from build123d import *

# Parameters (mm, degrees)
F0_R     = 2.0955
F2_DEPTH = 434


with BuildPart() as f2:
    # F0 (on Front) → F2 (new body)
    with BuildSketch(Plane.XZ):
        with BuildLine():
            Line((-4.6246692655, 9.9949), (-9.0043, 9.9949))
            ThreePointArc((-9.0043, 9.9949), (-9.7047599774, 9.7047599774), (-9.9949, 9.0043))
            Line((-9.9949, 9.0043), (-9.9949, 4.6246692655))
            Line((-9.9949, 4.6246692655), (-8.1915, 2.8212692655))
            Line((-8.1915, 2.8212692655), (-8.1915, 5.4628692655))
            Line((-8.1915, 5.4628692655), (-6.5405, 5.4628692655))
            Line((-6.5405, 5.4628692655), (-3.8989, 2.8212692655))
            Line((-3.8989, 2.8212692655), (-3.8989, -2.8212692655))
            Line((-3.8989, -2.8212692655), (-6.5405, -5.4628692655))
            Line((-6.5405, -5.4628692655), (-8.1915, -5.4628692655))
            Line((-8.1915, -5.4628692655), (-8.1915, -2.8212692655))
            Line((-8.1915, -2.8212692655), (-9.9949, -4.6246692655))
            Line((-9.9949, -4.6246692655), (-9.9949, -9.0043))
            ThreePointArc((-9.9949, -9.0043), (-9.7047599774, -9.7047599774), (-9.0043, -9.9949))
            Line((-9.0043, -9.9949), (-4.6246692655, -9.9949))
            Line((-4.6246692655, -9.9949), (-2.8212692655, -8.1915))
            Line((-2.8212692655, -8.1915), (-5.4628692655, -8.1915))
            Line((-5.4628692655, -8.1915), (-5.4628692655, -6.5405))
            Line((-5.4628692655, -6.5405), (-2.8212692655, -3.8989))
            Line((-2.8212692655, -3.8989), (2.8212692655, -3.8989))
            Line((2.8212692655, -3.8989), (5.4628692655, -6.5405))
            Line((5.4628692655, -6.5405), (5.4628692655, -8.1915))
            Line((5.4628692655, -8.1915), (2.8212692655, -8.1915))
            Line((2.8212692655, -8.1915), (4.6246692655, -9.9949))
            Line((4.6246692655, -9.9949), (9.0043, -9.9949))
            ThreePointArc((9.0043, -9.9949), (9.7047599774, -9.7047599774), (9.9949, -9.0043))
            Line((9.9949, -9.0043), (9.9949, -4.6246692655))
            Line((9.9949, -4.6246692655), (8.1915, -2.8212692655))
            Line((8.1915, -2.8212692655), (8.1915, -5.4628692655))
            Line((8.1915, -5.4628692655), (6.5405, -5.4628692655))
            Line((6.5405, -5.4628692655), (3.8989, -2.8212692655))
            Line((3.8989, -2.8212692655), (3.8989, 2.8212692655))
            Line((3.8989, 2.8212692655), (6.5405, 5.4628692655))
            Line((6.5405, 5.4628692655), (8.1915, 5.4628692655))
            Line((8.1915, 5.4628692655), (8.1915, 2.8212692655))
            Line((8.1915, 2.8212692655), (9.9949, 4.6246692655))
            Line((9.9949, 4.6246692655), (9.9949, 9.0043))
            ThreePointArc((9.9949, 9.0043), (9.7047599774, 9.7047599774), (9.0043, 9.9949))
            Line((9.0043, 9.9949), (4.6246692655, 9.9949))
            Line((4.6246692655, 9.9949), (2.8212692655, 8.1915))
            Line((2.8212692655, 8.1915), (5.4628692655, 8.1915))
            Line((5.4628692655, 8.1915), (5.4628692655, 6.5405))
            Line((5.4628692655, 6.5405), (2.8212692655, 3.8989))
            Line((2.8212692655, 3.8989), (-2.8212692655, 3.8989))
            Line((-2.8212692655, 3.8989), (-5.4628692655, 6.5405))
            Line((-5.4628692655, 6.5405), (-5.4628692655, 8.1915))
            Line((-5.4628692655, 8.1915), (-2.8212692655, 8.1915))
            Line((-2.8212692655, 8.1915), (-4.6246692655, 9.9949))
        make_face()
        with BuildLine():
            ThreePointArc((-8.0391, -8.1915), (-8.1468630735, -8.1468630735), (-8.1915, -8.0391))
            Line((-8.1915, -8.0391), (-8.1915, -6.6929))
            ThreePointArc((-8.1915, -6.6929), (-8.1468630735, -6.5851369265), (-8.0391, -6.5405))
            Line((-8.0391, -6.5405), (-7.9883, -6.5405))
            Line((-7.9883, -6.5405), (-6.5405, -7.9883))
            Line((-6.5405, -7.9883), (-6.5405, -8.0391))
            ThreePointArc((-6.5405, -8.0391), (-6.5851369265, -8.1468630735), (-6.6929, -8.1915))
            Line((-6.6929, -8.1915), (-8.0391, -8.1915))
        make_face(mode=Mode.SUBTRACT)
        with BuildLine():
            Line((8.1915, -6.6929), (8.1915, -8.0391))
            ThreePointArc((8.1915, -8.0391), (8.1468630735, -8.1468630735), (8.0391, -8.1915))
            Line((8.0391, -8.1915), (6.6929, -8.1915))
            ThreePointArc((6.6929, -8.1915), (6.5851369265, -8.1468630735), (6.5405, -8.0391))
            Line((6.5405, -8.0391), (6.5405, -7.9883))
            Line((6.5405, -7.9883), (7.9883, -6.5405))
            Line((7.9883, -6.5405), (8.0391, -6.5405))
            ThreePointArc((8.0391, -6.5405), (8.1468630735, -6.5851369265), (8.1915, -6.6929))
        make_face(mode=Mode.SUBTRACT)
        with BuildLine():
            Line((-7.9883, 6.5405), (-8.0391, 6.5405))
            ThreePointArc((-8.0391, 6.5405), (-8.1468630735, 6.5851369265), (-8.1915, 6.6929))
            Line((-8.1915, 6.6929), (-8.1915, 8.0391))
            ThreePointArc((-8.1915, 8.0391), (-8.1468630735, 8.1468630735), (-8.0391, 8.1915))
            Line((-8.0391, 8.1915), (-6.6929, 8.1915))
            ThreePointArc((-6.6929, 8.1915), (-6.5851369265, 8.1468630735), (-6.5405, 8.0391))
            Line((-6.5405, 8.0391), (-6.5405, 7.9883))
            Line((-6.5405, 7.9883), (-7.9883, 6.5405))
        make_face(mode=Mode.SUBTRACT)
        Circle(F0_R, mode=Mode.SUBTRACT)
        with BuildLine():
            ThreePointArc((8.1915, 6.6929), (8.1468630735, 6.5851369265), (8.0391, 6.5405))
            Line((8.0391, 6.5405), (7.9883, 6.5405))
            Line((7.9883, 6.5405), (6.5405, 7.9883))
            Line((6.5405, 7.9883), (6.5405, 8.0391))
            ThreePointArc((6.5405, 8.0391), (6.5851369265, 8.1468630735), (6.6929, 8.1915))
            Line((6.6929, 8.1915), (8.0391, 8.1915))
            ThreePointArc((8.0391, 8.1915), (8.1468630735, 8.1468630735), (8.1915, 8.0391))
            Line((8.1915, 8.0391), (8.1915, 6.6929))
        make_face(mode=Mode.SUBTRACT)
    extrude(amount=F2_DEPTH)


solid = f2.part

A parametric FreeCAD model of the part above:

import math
import FreeCAD as App
import Part
import Sketcher
from FreeCAD import Vector
Q = App.Units.Quantity

doc = App.newDocument("Part")
body = doc.addObject("PartDesign::Body", "Body")

sketch1 = body.newObject("Sketcher::SketchObject", "Sketch")
sketch1.AttachmentSupport = (doc.getObject("XZ_Plane"), [""])
sketch1.MapMode = "FlatFace"
sketch1.addGeometry(Part.LineSegment(Vector(-4.62, 9.99, 0), Vector(-9, 9.99, 0)), False)
sketch1.addGeometry(Part.ArcOfCircle(Part.Circle(Vector(-9, 9, 0), Vector(0, 0, 1), 0.99), math.radians(90), math.radians(180)), False)
sketch1.addGeometry(Part.LineSegment(Vector(-9.99, 9, 0), Vector(-9.99, 4.62, 0)), False)
sketch1.addGeometry(Part.LineSegment(Vector(-9.99, 4.62, 0), Vector(-8.19, 2.82, 0)), False)
sketch1.addGeometry(Part.LineSegment(Vector(-8.19, 2.82, 0), Vector(-8.19, 5.46, 0)), False)
sketch1.addGeometry(Part.LineSegment(Vector(-8.19, 5.46, 0), Vector(-6.54, 5.46, 0)), False)
sketch1.addGeometry(Part.LineSegment(Vector(-6.54, 5.46, 0), Vector(-3.9, 2.82, 0)), False)
sketch1.addGeometry(Part.LineSegment(Vector(-3.9, 2.82, 0), Vector(-3.9, -2.82, 0)), False)
sketch1.addGeometry(Part.LineSegment(Vector(-3.9, -2.82, 0), Vector(-6.54, -5.46, 0)), False)
sketch1.addGeometry(Part.LineSegment(Vector(-6.54, -5.46, 0), Vector(-8.19, -5.46, 0)), False)
sketch1.addGeometry(Part.LineSegment(Vector(-8.19, -5.46, 0), Vector(-8.19, -2.82, 0)), False)
sketch1.addGeometry(Part.LineSegment(Vector(-8.19, -2.82, 0), Vector(-9.99, -4.62, 0)), False)
sketch1.addGeometry(Part.LineSegment(Vector(-9.99, -4.62, 0), Vector(-9.99, -9, 0)), False)
sketch1.addGeometry(Part.ArcOfCircle(Part.Circle(Vector(-9, -9, 0), Vector(0, 0, 1), 0.99), math.radians(180), math.radians(270)), False)
sketch1.addGeometry(Part.LineSegment(Vector(-9, -9.99, 0), Vector(-4.62, -9.99, 0)), False)
sketch1.addGeometry(Part.LineSegment(Vector(-4.62, -9.99, 0), Vector(-2.82, -8.19, 0)), False)
sketch1.addGeometry(Part.LineSegment(Vector(-2.82, -8.19, 0), Vector(-5.46, -8.19, 0)), False)
sketch1.addGeometry(Part.LineSegment(Vector(-5.46, -8.19, 0), Vector(-5.46, -6.54, 0)), False)
sketch1.addGeometry(Part.LineSegment(Vector(-5.46, -6.54, 0), Vector(-2.82, -3.9, 0)), False)
sketch1.addGeometry(Part.LineSegment(Vector(-2.82, -3.9, 0), Vector(2.82, -3.9, 0)), False)
sketch1.addGeometry(Part.LineSegment(Vector(2.82, -3.9, 0), Vector(5.46, -6.54, 0)), False)
sketch1.addGeometry(Part.LineSegment(Vector(5.46, -6.54, 0), Vector(5.46, -8.19, 0)), False)
sketch1.addGeometry(Part.LineSegment(Vector(5.46, -8.19, 0), Vector(2.82, -8.19, 0)), False)
sketch1.addGeometry(Part.LineSegment(Vector(2.82, -8.19, 0), Vector(4.62, -9.99, 0)), False)
sketch1.addGeometry(Part.LineSegment(Vector(4.62, -9.99, 0), Vector(9, -9.99, 0)), False)
sketch1.addGeometry(Part.ArcOfCircle(Part.Circle(Vector(9, -9, 0), Vector(0, 0, 1), 0.99), math.radians(-90), math.radians(0)), False)
sketch1.addGeometry(Part.LineSegment(Vector(9.99, -9, 0), Vector(9.99, -4.62, 0)), False)
sketch1.addGeometry(Part.LineSegment(Vector(9.99, -4.62, 0), Vector(8.19, -2.82, 0)), False)
sketch1.addGeometry(Part.LineSegment(Vector(8.19, -2.82, 0), Vector(8.19, -5.46, 0)), False)
sketch1.addGeometry(Part.LineSegment(Vector(8.19, -5.46, 0), Vector(6.54, -5.46, 0)), False)
sketch1.addGeometry(Part.LineSegment(Vector(6.54, -5.46, 0), Vector(3.9, -2.82, 0)), False)
sketch1.addGeometry(Part.LineSegment(Vector(3.9, -2.82, 0), Vector(3.9, 2.82, 0)), False)
sketch1.addGeometry(Part.LineSegment(Vector(3.9, 2.82, 0), Vector(6.54, 5.46, 0)), False)
sketch1.addGeometry(Part.LineSegment(Vector(6.54, 5.46, 0), Vector(8.19, 5.46, 0)), False)
sketch1.addGeometry(Part.LineSegment(Vector(8.19, 5.46, 0), Vector(8.19, 2.82, 0)), False)
sketch1.addGeometry(Part.LineSegment(Vector(8.19, 2.82, 0), Vector(9.99, 4.62, 0)), False)
sketch1.addGeometry(Part.LineSegment(Vector(9.99, 4.62, 0), Vector(9.99, 9, 0)), False)
sketch1.addGeometry(Part.ArcOfCircle(Part.Circle(Vector(9, 9, 0), Vector(0, 0, 1), 0.99), math.radians(0), math.radians(90)), False)
sketch1.addGeometry(Part.LineSegment(Vector(9, 9.99, 0), Vector(4.62, 9.99, 0)), False)
sketch1.addGeometry(Part.LineSegment(Vector(4.62, 9.99, 0), Vector(2.82, 8.19, 0)), False)
sketch1.addGeometry(Part.LineSegment(Vector(2.82, 8.19, 0), Vector(5.46, 8.19, 0)), False)
sketch1.addGeometry(Part.LineSegment(Vector(5.46, 8.19, 0), Vector(5.46, 6.54, 0)), False)
sketch1.addGeometry(Part.LineSegment(Vector(5.46, 6.54, 0), Vector(2.82, 3.9, 0)), False)
sketch1.addGeometry(Part.LineSegment(Vector(2.82, 3.9, 0), Vector(-2.82, 3.9, 0)), False)
sketch1.addGeometry(Part.LineSegment(Vector(-2.82, 3.9, 0), Vector(-5.46, 6.54, 0)), False)
sketch1.addGeometry(Part.LineSegment(Vector(-5.46, 6.54, 0), Vector(-5.46, 8.19, 0)), False)
sketch1.addGeometry(Part.LineSegment(Vector(-5.46, 8.19, 0), Vector(-2.82, 8.19, 0)), False)
sketch1.addGeometry(Part.LineSegment(Vector(-2.82, 8.19, 0), Vector(-4.62, 9.99, 0)), False)
sketch1.addGeometry(Part.LineSegment(Vector(-6.69, -8.19, 0), Vector(-8.04, -8.19, 0)), False)
sketch1.addGeometry(Part.ArcOfCircle(Part.Circle(Vector(-8.04, -8.04, 0), Vector(0, 0, 1), 0.15), math.radians(180), math.radians(270)), False)
sketch1.addGeometry(Part.LineSegment(Vector(-8.19, -8.04, 0), Vector(-8.19, -6.69, 0)), False)
sketch1.addGeometry(Part.ArcOfCircle(Part.Circle(Vector(-8.04, -6.69, 0), Vector(0, 0, 1), 0.15), math.radians(90), math.radians(180)), False)
sketch1.addGeometry(Part.LineSegment(Vector(-8.04, -6.54, 0), Vector(-7.99, -6.54, 0)), False)
sketch1.addGeometry(Part.LineSegment(Vector(-7.99, -6.54, 0), Vector(-6.54, -7.99, 0)), False)
sketch1.addGeometry(Part.LineSegment(Vector(-6.54, -7.99, 0), Vector(-6.54, -8.04, 0)), False)
sketch1.addGeometry(Part.ArcOfCircle(Part.Circle(Vector(-6.69, -8.04, 0), Vector(0, 0, 1), 0.15), math.radians(-90), math.radians(0)), False)
sketch1.addGeometry(Part.ArcOfCircle(Part.Circle(Vector(8.04, -6.69, 0), Vector(0, 0, 1), 0.15), math.radians(0), math.radians(90)), False)
sketch1.addGeometry(Part.LineSegment(Vector(8.19, -6.69, 0), Vector(8.19, -8.04, 0)), False)
sketch1.addGeometry(Part.ArcOfCircle(Part.Circle(Vector(8.04, -8.04, 0), Vector(0, 0, 1), 0.15), math.radians(-90), math.radians(0)), False)
sketch1.addGeometry(Part.LineSegment(Vector(8.04, -8.19, 0), Vector(6.69, -8.19, 0)), False)
sketch1.addGeometry(Part.ArcOfCircle(Part.Circle(Vector(6.69, -8.04, 0), Vector(0, 0, 1), 0.15), math.radians(180), math.radians(270)), False)
sketch1.addGeometry(Part.LineSegment(Vector(6.54, -8.04, 0), Vector(6.54, -7.99, 0)), False)
sketch1.addGeometry(Part.LineSegment(Vector(6.54, -7.99, 0), Vector(7.99, -6.54, 0)), False)
sketch1.addGeometry(Part.LineSegment(Vector(7.99, -6.54, 0), Vector(8.04, -6.54, 0)), False)
sketch1.addGeometry(Part.LineSegment(Vector(-6.54, 7.99, 0), Vector(-7.99, 6.54, 0)), False)
sketch1.addGeometry(Part.LineSegment(Vector(-7.99, 6.54, 0), Vector(-8.04, 6.54, 0)), False)
sketch1.addGeometry(Part.ArcOfCircle(Part.Circle(Vector(-8.04, 6.69, 0), Vector(0, 0, 1), 0.15), math.radians(180), math.radians(270)), False)
sketch1.addGeometry(Part.LineSegment(Vector(-8.19, 6.69, 0), Vector(-8.19, 8.04, 0)), False)
sketch1.addGeometry(Part.ArcOfCircle(Part.Circle(Vector(-8.04, 8.04, 0), Vector(0, 0, 1), 0.15), math.radians(90), math.radians(180)), False)
sketch1.addGeometry(Part.LineSegment(Vector(-8.04, 8.19, 0), Vector(-6.69, 8.19, 0)), False)
sketch1.addGeometry(Part.ArcOfCircle(Part.Circle(Vector(-6.69, 8.04, 0), Vector(0, 0, 1), 0.15), math.radians(0), math.radians(90)), False)
sketch1.addGeometry(Part.LineSegment(Vector(-6.54, 8.04, 0), Vector(-6.54, 7.99, 0)), False)
sketch1.addGeometry(Part.Circle(Vector(0, 0, 0), Vector(0, 0, 1), 2.1), False)
sketch1.addGeometry(Part.LineSegment(Vector(8.19, 8.04, 0), Vector(8.19, 6.69, 0)), False)
sketch1.addGeometry(Part.ArcOfCircle(Part.Circle(Vector(8.04, 6.69, 0), Vector(0, 0, 1), 0.15), math.radians(-90), math.radians(0)), False)
sketch1.addGeometry(Part.LineSegment(Vector(8.04, 6.54, 0), Vector(7.99, 6.54, 0)), False)
sketch1.addGeometry(Part.LineSegment(Vector(7.99, 6.54, 0), Vector(6.54, 7.99, 0)), False)
sketch1.addGeometry(Part.LineSegment(Vector(6.54, 7.99, 0), Vector(6.54, 8.04, 0)), False)
sketch1.addGeometry(Part.ArcOfCircle(Part.Circle(Vector(6.69, 8.04, 0), Vector(0, 0, 1), 0.15), math.radians(90), math.radians(180)), False)
sketch1.addGeometry(Part.LineSegment(Vector(6.69, 8.19, 0), Vector(8.04, 8.19, 0)), False)
sketch1.addGeometry(Part.ArcOfCircle(Part.Circle(Vector(8.04, 8.04, 0), Vector(0, 0, 1), 0.15), math.radians(0), math.radians(90)), False)
sketch1.addConstraint(Sketcher.Constraint("Tangent", 0, 2, 1, 1))
sketch1.addConstraint(Sketcher.Constraint("Tangent", 1, 2, 2, 1))
sketch1.addConstraint(Sketcher.Constraint("Coincident", 2, 2, 3, 1))
sketch1.addConstraint(Sketcher.Constraint("Coincident", 3, 2, 4, 1))
sketch1.addConstraint(Sketcher.Constraint("Coincident", 4, 2, 5, 1))
sketch1.addConstraint(Sketcher.Constraint("Coincident", 5, 2, 6, 1))
sketch1.addConstraint(Sketcher.Constraint("Coincident", 6, 2, 7, 1))
sketch1.addConstraint(Sketcher.Constraint("Coincident", 7, 2, 8, 1))
sketch1.addConstraint(Sketcher.Constraint("Coincident", 8, 2, 9, 1))
sketch1.addConstraint(Sketcher.Constraint("Coincident", 9, 2, 10, 1))
sketch1.addConstraint(Sketcher.Constraint("Coincident", 10, 2, 11, 1))
sketch1.addConstraint(Sketcher.Constraint("Coincident", 11, 2, 12, 1))
sketch1.addConstraint(Sketcher.Constraint("Tangent", 12, 2, 13, 1))
sketch1.addConstraint(Sketcher.Constraint("Tangent", 13, 2, 14, 1))
sketch1.addConstraint(Sketcher.Constraint("Coincident", 14, 2, 15, 1))
sketch1.addConstraint(Sketcher.Constraint("Coincident", 15, 2, 16, 1))
sketch1.addConstraint(Sketcher.Constraint("Coincident", 16, 2, 17, 1))
sketch1.addConstraint(Sketcher.Constraint("Coincident", 17, 2, 18, 1))
sketch1.addConstraint(Sketcher.Constraint("Coincident", 18, 2, 19, 1))
sketch1.addConstraint(Sketcher.Constraint("Coincident", 19, 2, 20, 1))
sketch1.addConstraint(Sketcher.Constraint("Coincident", 20, 2, 21, 1))
sketch1.addConstraint(Sketcher.Constraint("Coincident", 21, 2, 22, 1))
sketch1.addConstraint(Sketcher.Constraint("Coincident", 22, 2, 23, 1))
sketch1.addConstraint(Sketcher.Constraint("Coincident", 23, 2, 24, 1))
sketch1.addConstraint(Sketcher.Constraint("Tangent", 24, 2, 25, 1))
sketch1.addConstraint(Sketcher.Constraint("Tangent", 25, 2, 26, 1))
sketch1.addConstraint(Sketcher.Constraint("Coincident", 26, 2, 27, 1))
sketch1.addConstraint(Sketcher.Constraint("Coincident", 27, 2, 28, 1))
sketch1.addConstraint(Sketcher.Constraint("Coincident", 28, 2, 29, 1))
sketch1.addConstraint(Sketcher.Constraint("Coincident", 29, 2, 30, 1))
sketch1.addConstraint(Sketcher.Constraint("Coincident", 30, 2, 31, 1))
sketch1.addConstraint(Sketcher.Constraint("Coincident", 31, 2, 32, 1))
sketch1.addConstraint(Sketcher.Constraint("Coincident", 32, 2, 33, 1))
sketch1.addConstraint(Sketcher.Constraint("Coincident", 33, 2, 34, 1))
sketch1.addConstraint(Sketcher.Constraint("Coincident", 34, 2, 35, 1))
sketch1.addConstraint(Sketcher.Constraint("Coincident", 35, 2, 36, 1))
sketch1.addConstraint(Sketcher.Constraint("Tangent", 36, 2, 37, 1))
sketch1.addConstraint(Sketcher.Constraint("Tangent", 37, 2, 38, 1))
sketch1.addConstraint(Sketcher.Constraint("Coincident", 38, 2, 39, 1))
sketch1.addConstraint(Sketcher.Constraint("Coincident", 39, 2, 40, 1))
sketch1.addConstraint(Sketcher.Constraint("Coincident", 40, 2, 41, 1))
sketch1.addConstraint(Sketcher.Constraint("Coincident", 41, 2, 42, 1))
sketch1.addConstraint(Sketcher.Constraint("Coincident", 42, 2, 43, 1))
sketch1.addConstraint(Sketcher.Constraint("Coincident", 43, 2, 44, 1))
sketch1.addConstraint(Sketcher.Constraint("Coincident", 44, 2, 45, 1))
sketch1.addConstraint(Sketcher.Constraint("Coincident", 45, 2, 46, 1))
sketch1.addConstraint(Sketcher.Constraint("Coincident", 46, 2, 47, 1))
sketch1.addConstraint(Sketcher.Constraint("Coincident", 47, 2, 0, 1))
sketch1.addConstraint(Sketcher.Constraint("Tangent", 48, 2, 49, 2))
sketch1.addConstraint(Sketcher.Constraint("Tangent", 49, 1, 50, 1))
sketch1.addConstraint(Sketcher.Constraint("Tangent", 50, 2, 51, 2))
sketch1.addConstraint(Sketcher.Constraint("Tangent", 51, 1, 52, 1))
sketch1.addConstraint(Sketcher.Constraint("Coincident", 52, 2, 53, 1))
sketch1.addConstraint(Sketcher.Constraint("Coincident", 53, 2, 54, 1))
sketch1.addConstraint(Sketcher.Constraint("Tangent", 54, 2, 55, 2))
sketch1.addConstraint(Sketcher.Constraint("Tangent", 55, 1, 48, 1))
sketch1.addConstraint(Sketcher.Constraint("Tangent", 56, 1, 57, 1))
sketch1.addConstraint(Sketcher.Constraint("Tangent", 57, 2, 58, 2))
sketch1.addConstraint(Sketcher.Constraint("Tangent", 58, 1, 59, 1))
sketch1.addConstraint(Sketcher.Constraint("Tangent", 59, 2, 60, 2))
sketch1.addConstraint(Sketcher.Constraint("Tangent", 60, 1, 61, 1))
sketch1.addConstraint(Sketcher.Constraint("Coincident", 61, 2, 62, 1))
sketch1.addConstraint(Sketcher.Constraint("Coincident", 62, 2, 63, 1))
sketch1.addConstraint(Sketcher.Constraint("Tangent", 63, 2, 56, 2))
sketch1.addConstraint(Sketcher.Constraint("Coincident", 64, 2, 65, 1))
sketch1.addConstraint(Sketcher.Constraint("Tangent", 65, 2, 66, 2))
sketch1.addConstraint(Sketcher.Constraint("Tangent", 66, 1, 67, 1))
sketch1.addConstraint(Sketcher.Constraint("Tangent", 67, 2, 68, 2))
sketch1.addConstraint(Sketcher.Constraint("Tangent", 68, 1, 69, 1))
sketch1.addConstraint(Sketcher.Constraint("Tangent", 69, 2, 70, 2))
sketch1.addConstraint(Sketcher.Constraint("Tangent", 70, 1, 71, 1))
sketch1.addConstraint(Sketcher.Constraint("Coincident", 71, 2, 64, 1))
sketch1.addConstraint(Sketcher.Constraint("Tangent", 73, 2, 74, 2))
sketch1.addConstraint(Sketcher.Constraint("Tangent", 74, 1, 75, 1))
sketch1.addConstraint(Sketcher.Constraint("Coincident", 75, 2, 76, 1))
sketch1.addConstraint(Sketcher.Constraint("Coincident", 76, 2, 77, 1))
sketch1.addConstraint(Sketcher.Constraint("Tangent", 77, 2, 78, 2))
sketch1.addConstraint(Sketcher.Constraint("Tangent", 78, 1, 79, 1))
sketch1.addConstraint(Sketcher.Constraint("Tangent", 79, 2, 80, 2))
sketch1.addConstraint(Sketcher.Constraint("Tangent", 80, 1, 73, 1))
sketch1.addConstraint(Sketcher.Constraint("Horizontal", 0))
sketch1.addConstraint(Sketcher.Constraint("Vertical", 2))
sketch1.addConstraint(Sketcher.Constraint("Vertical", 4))
sketch1.addConstraint(Sketcher.Constraint("Horizontal", 5))
sketch1.addConstraint(Sketcher.Constraint("Vertical", 7))
sketch1.addConstraint(Sketcher.Constraint("Horizontal", 9))
sketch1.addConstraint(Sketcher.Constraint("Vertical", 10))
sketch1.addConstraint(Sketcher.Constraint("Vertical", 12))
sketch1.addConstraint(Sketcher.Constraint("Horizontal", 14))
sketch1.addConstraint(Sketcher.Constraint("Horizontal", 16))
sketch1.addConstraint(Sketcher.Constraint("Vertical", 17))
sketch1.addConstraint(Sketcher.Constraint("Horizontal", 19))
sketch1.addConstraint(Sketcher.Constraint("Vertical", 21))
sketch1.addConstraint(Sketcher.Constraint("Horizontal", 22))
sketch1.addConstraint(Sketcher.Constraint("Horizontal", 24))
sketch1.addConstraint(Sketcher.Constraint("Vertical", 26))
sketch1.addConstraint(Sketcher.Constraint("Vertical", 28))
sketch1.addConstraint(Sketcher.Constraint("Horizontal", 29))
sketch1.addConstraint(Sketcher.Constraint("Vertical", 31))
sketch1.addConstraint(Sketcher.Constraint("Horizontal", 33))
sketch1.addConstraint(Sketcher.Constraint("Vertical", 34))
sketch1.addConstraint(Sketcher.Constraint("Vertical", 36))
sketch1.addConstraint(Sketcher.Constraint("Horizontal", 38))
sketch1.addConstraint(Sketcher.Constraint("Horizontal", 40))
sketch1.addConstraint(Sketcher.Constraint("Vertical", 41))
sketch1.addConstraint(Sketcher.Constraint("Horizontal", 43))
sketch1.addConstraint(Sketcher.Constraint("Vertical", 45))
sketch1.addConstraint(Sketcher.Constraint("Horizontal", 46))
sketch1.addConstraint(Sketcher.Constraint("Horizontal", 48))
sketch1.addConstraint(Sketcher.Constraint("Vertical", 50))
sketch1.addConstraint(Sketcher.Constraint("Horizontal", 52))
sketch1.addConstraint(Sketcher.Constraint("Vertical", 54))
sketch1.addConstraint(Sketcher.Constraint("Vertical", 57))
sketch1.addConstraint(Sketcher.Constraint("Horizontal", 59))
sketch1.addConstraint(Sketcher.Constraint("Vertical", 61))
sketch1.addConstraint(Sketcher.Constraint("Horizontal", 63))
sketch1.addConstraint(Sketcher.Constraint("Horizontal", 65))
sketch1.addConstraint(Sketcher.Constraint("Vertical", 67))
sketch1.addConstraint(Sketcher.Constraint("Horizontal", 69))
sketch1.addConstraint(Sketcher.Constraint("Vertical", 71))
sketch1.addConstraint(Sketcher.Constraint("Vertical", 73))
sketch1.addConstraint(Sketcher.Constraint("Horizontal", 75))
sketch1.addConstraint(Sketcher.Constraint("Vertical", 77))
sketch1.addConstraint(Sketcher.Constraint("Horizontal", 79))
sketch1.addConstraint(Sketcher.Constraint("Coincident", 72, 3, -1, 1))
sketch1.addConstraint(Sketcher.Constraint("Equal", 1, 13))
sketch1.addConstraint(Sketcher.Constraint("Equal", 13, 25))
sketch1.addConstraint(Sketcher.Constraint("Equal", 25, 37))
sketch1.addConstraint(Sketcher.Constraint("Equal", 49, 51))
sketch1.addConstraint(Sketcher.Constraint("Equal", 51, 55))
sketch1.addConstraint(Sketcher.Constraint("Equal", 55, 56))
sketch1.addConstraint(Sketcher.Constraint("Equal", 56, 58))
sketch1.addConstraint(Sketcher.Constraint("Equal", 58, 60))
sketch1.addConstraint(Sketcher.Constraint("Equal", 60, 66))
sketch1.addConstraint(Sketcher.Constraint("Equal", 66, 68))
sketch1.addConstraint(Sketcher.Constraint("Equal", 68, 70))
sketch1.addConstraint(Sketcher.Constraint("Equal", 70, 74))
sketch1.addConstraint(Sketcher.Constraint("Equal", 74, 78))
sketch1.addConstraint(Sketcher.Constraint("Equal", 78, 80))
sketch1.addConstraint(Sketcher.Constraint("Symmetric", 1, 3, 25, 3, -1, 1))
sketch1.addConstraint(Sketcher.Constraint("Symmetric", 13, 3, 37, 3, -1, 1))
sketch1.addConstraint(Sketcher.Constraint("Symmetric", 56, 3, 66, 3, -1, 1))
sketch1.addConstraint(Sketcher.Constraint("Symmetric", 60, 3, 70, 3, -1, 1))
sketch1.addConstraint(Sketcher.Constraint("Symmetric", 51, 3, 74, 3, -1, 1))
sketch1.addConstraint(Sketcher.Constraint("Symmetric", 55, 3, 78, 3, -1, 1))
sketch1.addConstraint(Sketcher.Constraint("Symmetric", 3, 2, 27, 2, -1, 1))
sketch1.addConstraint(Sketcher.Constraint("Symmetric", 5, 2, 29, 2, -1, 1))
sketch1.addConstraint(Sketcher.Constraint("Symmetric", 6, 2, 30, 2, -1, 1))
sketch1.addConstraint(Sketcher.Constraint("Symmetric", 8, 2, 32, 2, -1, 1))
sketch1.addConstraint(Sketcher.Constraint("Symmetric", 10, 2, 34, 2, -1, 1))
sketch1.addConstraint(Sketcher.Constraint("Symmetric", 15, 2, 39, 2, -1, 1))
sketch1.addConstraint(Sketcher.Constraint("Symmetric", 17, 2, 41, 2, -1, 1))
sketch1.addConstraint(Sketcher.Constraint("Symmetric", 18, 2, 42, 2, -1, 1))
sketch1.addConstraint(Sketcher.Constraint("Symmetric", 20, 2, 44, 2, -1, 1))
sketch1.addConstraint(Sketcher.Constraint("Symmetric", 22, 2, 46, 2, -1, 1))
sketch1.addConstraint(Sketcher.Constraint("Symmetric", 13, 3, 25, 3, -2))
sketch1.addConstraint(Sketcher.Constraint("Symmetric", 51, 3, 56, 3, -2))
sketch1.addConstraint(Sketcher.Constraint("Symmetric", 55, 3, 60, 3, -2))
sketch1.addConstraint(Sketcher.Constraint("Symmetric", 17, 2, 20, 2, -2))
sketch1.addConstraint(Sketcher.Constraint("Symmetric", 15, 2, 22, 2, -2))
sketch1.addConstraint(Sketcher.Constraint("Symmetric", 10, 2, 27, 2, -2))
sketch1.addConstraint(Sketcher.Constraint("Symmetric", 8, 2, 29, 2, -2))
sketch1.addConstraint(Sketcher.Constraint("Parallel", 3, 6))
sketch1.addConstraint(Sketcher.Constraint("Perpendicular", 6, 8))
sketch1.addConstraint(Sketcher.Constraint("Parallel", 8, 11))
sketch1.addConstraint(Sketcher.Constraint("Parallel", 11, 15))
sketch1.addConstraint(Sketcher.Constraint("Parallel", 15, 18))
sketch1.addConstraint(Sketcher.Constraint("Perpendicular", 18, 20))
sketch1.addConstraint(Sketcher.Constraint("Parallel", 20, 23))
sketch1.addConstraint(Sketcher.Constraint("Parallel", 23, 27))
sketch1.addConstraint(Sketcher.Constraint("Perpendicular", 30, 32))
sketch1.addConstraint(Sketcher.Constraint("Parallel", 32, 35))
sketch1.addConstraint(Sketcher.Constraint("Parallel", 35, 39))
sketch1.addConstraint(Sketcher.Constraint("Perpendicular", 42, 44))
sketch1.addConstraint(Sketcher.Constraint("Parallel", 44, 47))
sketch1.addConstraint(Sketcher.Constraint("Parallel", 47, 53))
sketch1.addConstraint(Sketcher.Constraint("Perpendicular", 53, 62))
sketch1.addConstraint(Sketcher.Constraint("Parallel", 62, 64))
sketch1.addConstraint(Sketcher.Constraint("Perpendicular", 64, 76))
sketch1.addConstraint(Sketcher.Constraint("Horizontal", 3, 2, 6, 2))
sketch1.addConstraint(Sketcher.Constraint("Horizontal", 7, 2, 10, 2))
sketch1.addConstraint(Sketcher.Constraint("Horizontal", 22, 2, 48, 2))
sketch1.addConstraint(Sketcher.Constraint("Horizontal", 20, 2, 51, 1))
sketch1.addConstraint(Sketcher.Constraint("Horizontal", 53, 2, 61, 2))
sketch1.addConstraint(Sketcher.Constraint("Horizontal", 71, 2, 76, 2))
sketch1.addConstraint(Sketcher.Constraint("Vertical", 15, 2, 18, 2))
sketch1.addConstraint(Sketcher.Constraint("Vertical", 10, 2, 49, 1))
sketch1.addConstraint(Sketcher.Constraint("Vertical", 8, 2, 53, 2))
sketch1.addConstraint(Sketcher.Constraint("Vertical", 52, 2, 64, 2))
sketch1.addConstraint(Sketcher.Constraint("Equal", 38, 2))
sketch1.addConstraint(Sketcher.Constraint("Equal", 46, 4))
sketch1.addConstraint(Sketcher.Constraint("Equal", 43, 7))
sketch1.addConstraint(Sketcher.Constraint("Equal", 33, 17))
sketch1.addConstraint(Sketcher.Constraint("Equal", 11, 15))
sketch1.addConstraint(Sketcher.Constraint("Diameter", 72, Q("0.165 in")))
sketch1.addConstraint(Sketcher.Constraint("Radius", 1, Q("0.039 in")))
sketch1.addConstraint(Sketcher.Constraint("Radius", 49, Q("0.006 in")))
sketch1.addConstraint(Sketcher.Constraint("DistanceX", 5, 1, 5, 2, Q("0.065 in")))
sketch1.addConstraint(Sketcher.Constraint("DistanceX", 16, 2, 16, 1, Q("0.104 in")))
sketch1.addConstraint(Sketcher.Constraint("DistanceX", 52, 1, 52, 2, Q("0.002 in")))
sketch1.addConstraint(Sketcher.Constraint("DistanceX", 1, 3, -1, 1, Q("0.3545 in")))
sketch1.addConstraint(Sketcher.Constraint("DistanceX", 49, 3, -1, 1, Q("0.3165 in")))
sketch1.addConstraint(Sketcher.Constraint("DistanceX", 0, 2, 0, 1, 4.379631))
pad1 = body.newObject("PartDesign::Pad", "Pad")
pad1.Profile = sketch1
pad1.Length = 434

doc.recompute()
